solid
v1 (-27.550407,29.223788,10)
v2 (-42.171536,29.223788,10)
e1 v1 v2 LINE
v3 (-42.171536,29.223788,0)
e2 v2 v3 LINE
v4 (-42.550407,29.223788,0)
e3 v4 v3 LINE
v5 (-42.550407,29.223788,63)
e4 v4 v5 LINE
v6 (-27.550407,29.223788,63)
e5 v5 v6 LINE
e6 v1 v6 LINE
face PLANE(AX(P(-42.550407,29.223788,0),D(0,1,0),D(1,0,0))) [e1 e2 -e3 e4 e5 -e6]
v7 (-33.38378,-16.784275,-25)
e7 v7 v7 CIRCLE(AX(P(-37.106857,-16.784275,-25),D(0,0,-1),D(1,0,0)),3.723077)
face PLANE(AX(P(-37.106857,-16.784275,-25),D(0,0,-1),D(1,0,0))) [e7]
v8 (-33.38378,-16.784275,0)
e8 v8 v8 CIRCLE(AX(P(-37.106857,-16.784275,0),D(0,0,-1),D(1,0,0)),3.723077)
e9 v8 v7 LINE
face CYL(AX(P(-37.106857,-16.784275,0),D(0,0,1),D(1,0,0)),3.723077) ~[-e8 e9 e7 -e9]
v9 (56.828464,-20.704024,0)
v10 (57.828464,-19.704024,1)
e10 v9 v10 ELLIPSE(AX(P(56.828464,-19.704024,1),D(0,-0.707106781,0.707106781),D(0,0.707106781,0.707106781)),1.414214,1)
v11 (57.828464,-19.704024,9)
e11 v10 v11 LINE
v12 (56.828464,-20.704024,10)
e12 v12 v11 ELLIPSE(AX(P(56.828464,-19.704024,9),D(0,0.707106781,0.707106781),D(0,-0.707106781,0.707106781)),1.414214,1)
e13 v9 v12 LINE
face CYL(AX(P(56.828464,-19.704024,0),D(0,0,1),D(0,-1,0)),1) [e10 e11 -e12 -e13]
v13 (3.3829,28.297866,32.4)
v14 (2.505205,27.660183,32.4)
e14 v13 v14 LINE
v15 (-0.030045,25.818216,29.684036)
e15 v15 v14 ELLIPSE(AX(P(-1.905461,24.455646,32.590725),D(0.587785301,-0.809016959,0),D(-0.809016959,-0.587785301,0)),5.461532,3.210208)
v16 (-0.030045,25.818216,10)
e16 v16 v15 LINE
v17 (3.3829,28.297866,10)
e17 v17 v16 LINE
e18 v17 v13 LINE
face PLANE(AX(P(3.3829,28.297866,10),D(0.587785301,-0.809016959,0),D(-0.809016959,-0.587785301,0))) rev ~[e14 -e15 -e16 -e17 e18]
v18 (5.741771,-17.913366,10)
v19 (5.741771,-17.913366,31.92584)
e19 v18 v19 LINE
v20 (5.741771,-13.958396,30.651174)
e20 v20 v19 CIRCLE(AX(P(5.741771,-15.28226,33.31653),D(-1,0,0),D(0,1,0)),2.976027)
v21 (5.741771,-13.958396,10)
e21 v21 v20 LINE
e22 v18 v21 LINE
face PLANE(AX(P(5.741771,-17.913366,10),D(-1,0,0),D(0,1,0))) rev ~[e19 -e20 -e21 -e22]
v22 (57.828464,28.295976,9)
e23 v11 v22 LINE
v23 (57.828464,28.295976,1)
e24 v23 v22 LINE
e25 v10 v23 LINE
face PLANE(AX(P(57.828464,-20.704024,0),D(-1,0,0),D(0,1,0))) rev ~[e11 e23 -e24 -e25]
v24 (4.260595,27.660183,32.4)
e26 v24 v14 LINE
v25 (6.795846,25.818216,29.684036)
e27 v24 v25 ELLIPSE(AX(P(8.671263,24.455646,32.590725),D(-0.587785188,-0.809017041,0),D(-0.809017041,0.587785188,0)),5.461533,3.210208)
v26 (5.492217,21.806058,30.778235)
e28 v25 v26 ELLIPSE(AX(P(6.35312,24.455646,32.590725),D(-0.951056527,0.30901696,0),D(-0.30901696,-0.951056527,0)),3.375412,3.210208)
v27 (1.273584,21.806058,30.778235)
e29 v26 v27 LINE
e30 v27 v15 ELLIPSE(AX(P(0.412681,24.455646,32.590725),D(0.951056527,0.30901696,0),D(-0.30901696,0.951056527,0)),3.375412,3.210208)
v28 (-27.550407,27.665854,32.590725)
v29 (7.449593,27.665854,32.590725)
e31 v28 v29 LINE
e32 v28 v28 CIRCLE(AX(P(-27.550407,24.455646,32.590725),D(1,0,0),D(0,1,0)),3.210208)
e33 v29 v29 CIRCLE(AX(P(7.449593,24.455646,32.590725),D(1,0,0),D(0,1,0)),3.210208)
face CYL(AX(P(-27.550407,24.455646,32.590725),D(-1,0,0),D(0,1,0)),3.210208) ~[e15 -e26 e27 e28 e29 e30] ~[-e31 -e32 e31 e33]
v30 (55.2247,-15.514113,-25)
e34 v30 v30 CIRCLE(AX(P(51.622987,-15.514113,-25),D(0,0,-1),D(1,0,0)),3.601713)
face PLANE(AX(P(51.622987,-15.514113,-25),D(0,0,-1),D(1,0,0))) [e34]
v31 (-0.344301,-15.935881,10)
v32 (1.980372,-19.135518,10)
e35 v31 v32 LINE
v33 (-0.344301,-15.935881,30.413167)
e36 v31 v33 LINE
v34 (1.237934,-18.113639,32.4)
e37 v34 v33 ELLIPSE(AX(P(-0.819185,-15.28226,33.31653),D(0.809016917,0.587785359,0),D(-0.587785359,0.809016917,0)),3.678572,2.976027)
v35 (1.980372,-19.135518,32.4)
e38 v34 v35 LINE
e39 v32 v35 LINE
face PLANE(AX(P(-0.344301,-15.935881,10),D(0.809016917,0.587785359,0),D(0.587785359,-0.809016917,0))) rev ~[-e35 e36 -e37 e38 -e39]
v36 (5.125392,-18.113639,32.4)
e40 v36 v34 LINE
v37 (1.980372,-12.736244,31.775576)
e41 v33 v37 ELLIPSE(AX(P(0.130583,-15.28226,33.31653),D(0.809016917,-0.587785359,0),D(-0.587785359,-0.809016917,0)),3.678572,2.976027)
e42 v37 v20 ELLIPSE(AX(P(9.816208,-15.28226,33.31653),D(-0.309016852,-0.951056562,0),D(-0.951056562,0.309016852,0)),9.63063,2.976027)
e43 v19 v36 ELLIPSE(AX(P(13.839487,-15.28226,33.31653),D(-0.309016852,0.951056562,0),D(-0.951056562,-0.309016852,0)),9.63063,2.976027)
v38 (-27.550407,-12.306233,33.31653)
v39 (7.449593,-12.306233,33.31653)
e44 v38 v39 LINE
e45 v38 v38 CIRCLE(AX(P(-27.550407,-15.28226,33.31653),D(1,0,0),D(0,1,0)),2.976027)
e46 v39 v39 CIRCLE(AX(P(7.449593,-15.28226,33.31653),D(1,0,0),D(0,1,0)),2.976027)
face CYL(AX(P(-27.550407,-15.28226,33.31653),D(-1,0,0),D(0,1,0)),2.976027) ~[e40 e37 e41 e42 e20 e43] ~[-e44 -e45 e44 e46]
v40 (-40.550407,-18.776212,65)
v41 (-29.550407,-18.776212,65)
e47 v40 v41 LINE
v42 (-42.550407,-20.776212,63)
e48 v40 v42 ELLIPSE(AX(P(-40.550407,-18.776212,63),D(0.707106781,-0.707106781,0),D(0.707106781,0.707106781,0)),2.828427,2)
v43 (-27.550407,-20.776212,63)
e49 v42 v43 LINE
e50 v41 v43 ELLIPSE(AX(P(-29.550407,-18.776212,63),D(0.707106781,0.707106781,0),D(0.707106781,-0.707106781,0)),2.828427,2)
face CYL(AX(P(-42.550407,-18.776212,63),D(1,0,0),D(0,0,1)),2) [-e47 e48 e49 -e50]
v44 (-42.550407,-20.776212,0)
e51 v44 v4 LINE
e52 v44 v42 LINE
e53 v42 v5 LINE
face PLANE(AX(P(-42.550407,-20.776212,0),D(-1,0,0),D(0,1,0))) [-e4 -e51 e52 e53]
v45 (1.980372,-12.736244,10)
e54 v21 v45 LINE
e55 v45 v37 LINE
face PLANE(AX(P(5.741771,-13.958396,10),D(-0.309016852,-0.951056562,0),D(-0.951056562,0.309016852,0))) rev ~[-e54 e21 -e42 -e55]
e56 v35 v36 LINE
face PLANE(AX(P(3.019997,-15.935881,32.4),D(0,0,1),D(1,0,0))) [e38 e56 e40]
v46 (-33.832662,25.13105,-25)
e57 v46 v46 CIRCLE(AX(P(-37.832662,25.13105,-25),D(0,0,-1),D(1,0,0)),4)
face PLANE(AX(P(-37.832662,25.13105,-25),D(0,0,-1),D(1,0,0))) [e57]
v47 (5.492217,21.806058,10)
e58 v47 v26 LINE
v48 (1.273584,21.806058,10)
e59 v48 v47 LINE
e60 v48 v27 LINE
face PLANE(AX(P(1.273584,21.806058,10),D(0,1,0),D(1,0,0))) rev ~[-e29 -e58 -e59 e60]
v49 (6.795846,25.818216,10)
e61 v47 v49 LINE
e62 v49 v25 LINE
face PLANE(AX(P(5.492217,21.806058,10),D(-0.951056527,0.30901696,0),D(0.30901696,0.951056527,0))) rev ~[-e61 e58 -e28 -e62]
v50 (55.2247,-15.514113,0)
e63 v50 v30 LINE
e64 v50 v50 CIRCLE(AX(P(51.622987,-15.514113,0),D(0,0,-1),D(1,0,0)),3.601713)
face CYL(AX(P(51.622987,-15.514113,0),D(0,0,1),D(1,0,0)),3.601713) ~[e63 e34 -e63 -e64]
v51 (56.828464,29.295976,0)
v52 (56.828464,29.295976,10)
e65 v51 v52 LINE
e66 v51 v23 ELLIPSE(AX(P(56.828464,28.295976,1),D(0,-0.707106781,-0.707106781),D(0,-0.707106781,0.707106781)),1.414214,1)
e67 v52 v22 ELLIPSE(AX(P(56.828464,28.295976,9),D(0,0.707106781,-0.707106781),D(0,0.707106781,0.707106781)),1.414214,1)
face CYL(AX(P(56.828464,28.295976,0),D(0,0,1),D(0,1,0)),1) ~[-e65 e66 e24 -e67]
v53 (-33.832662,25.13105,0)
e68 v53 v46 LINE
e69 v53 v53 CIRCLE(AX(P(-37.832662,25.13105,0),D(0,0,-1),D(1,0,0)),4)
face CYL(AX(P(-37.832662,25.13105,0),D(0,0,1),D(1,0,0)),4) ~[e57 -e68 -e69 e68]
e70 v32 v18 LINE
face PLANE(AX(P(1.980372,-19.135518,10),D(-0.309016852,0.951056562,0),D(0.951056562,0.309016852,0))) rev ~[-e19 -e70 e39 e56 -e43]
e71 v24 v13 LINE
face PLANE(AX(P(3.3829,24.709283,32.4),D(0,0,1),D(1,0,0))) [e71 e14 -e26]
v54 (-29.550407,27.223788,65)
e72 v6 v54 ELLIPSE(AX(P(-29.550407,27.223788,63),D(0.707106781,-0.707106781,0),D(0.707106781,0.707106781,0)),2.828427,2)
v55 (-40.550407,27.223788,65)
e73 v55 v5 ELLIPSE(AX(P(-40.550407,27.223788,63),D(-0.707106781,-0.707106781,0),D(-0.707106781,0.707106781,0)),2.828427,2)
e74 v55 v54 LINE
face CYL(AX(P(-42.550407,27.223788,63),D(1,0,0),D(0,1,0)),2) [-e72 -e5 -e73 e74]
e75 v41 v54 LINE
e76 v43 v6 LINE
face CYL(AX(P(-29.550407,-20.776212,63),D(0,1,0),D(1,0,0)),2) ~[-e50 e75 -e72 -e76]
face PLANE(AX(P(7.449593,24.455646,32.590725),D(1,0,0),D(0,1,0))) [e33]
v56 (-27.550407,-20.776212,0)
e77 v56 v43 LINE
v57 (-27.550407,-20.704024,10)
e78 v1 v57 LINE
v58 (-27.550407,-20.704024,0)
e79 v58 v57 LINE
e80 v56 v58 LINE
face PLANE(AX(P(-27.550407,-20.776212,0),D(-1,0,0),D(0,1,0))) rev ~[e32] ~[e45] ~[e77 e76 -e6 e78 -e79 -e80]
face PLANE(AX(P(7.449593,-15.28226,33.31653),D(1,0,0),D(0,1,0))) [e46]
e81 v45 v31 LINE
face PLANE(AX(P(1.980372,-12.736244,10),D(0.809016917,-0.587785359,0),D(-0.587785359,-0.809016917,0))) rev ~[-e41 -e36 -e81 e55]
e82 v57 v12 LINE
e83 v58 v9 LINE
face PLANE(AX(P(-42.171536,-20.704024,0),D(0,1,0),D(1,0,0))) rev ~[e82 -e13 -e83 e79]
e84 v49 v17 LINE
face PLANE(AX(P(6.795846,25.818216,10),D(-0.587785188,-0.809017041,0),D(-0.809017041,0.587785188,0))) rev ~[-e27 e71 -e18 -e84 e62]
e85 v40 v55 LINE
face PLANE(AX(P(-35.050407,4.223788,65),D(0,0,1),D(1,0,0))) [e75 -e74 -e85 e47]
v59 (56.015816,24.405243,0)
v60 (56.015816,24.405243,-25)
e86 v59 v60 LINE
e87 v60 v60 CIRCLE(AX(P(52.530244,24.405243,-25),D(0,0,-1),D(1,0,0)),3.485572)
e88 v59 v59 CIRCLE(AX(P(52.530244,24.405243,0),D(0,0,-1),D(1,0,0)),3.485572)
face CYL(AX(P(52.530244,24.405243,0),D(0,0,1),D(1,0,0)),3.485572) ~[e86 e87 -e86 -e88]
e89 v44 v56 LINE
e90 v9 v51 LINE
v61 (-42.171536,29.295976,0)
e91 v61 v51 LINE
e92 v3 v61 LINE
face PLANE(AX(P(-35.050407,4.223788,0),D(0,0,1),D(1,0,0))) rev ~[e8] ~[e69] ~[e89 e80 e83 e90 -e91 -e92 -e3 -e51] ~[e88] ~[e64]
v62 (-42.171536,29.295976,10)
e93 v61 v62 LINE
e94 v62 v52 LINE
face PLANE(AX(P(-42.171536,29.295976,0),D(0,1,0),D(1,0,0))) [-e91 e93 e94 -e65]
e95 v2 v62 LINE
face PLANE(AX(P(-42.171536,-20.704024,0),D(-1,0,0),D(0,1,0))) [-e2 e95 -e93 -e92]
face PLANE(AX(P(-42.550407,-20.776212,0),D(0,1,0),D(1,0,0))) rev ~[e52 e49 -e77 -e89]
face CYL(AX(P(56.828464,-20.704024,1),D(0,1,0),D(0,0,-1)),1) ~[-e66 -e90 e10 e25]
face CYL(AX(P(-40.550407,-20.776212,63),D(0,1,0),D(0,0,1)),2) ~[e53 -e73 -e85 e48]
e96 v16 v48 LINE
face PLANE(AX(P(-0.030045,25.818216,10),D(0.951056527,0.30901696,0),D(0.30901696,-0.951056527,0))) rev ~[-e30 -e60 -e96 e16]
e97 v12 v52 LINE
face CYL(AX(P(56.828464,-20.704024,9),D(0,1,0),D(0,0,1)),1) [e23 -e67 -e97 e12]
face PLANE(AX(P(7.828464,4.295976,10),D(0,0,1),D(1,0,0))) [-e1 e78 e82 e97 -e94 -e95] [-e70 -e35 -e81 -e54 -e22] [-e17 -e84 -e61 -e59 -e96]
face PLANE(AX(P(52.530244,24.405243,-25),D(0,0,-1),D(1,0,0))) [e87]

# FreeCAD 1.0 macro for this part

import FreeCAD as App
import Part
import Sketcher
from FreeCAD import Vector
Q = App.Units.Quantity


def edges_at(feature, points):
    """Names of the edges that pass closest to the given points."""
    edges = feature.Shape.Edges
    near = lambda p: min(range(len(edges)), key=lambda i: edges[i].distToShape(Part.Vertex(*p))[0])
    return sorted({f"Edge{near(p) + 1}" for p in points})

doc = App.newDocument("Part")
body = doc.addObject("PartDesign::Body", "Body")

sketch1 = doc.addObject("Sketcher::SketchObject", "Sketch")
body.addObject(sketch1)
sketch1.AttachmentSupport = (doc.XY_Plane, [""])
sketch1.MapMode = "FlatFace"
sketch1.addGeometry(Part.LineSegment(Vector(-42, 29, 0), Vector(-42, -21, 0)), False)
sketch1.addGeometry(Part.LineSegment(Vector(-42, -21, 0), Vector(58, -21, 0)), False)
sketch1.addGeometry(Part.LineSegment(Vector(58, -21, 0), Vector(58, 29, 0)), False)
sketch1.addGeometry(Part.LineSegment(Vector(58, 29, 0), Vector(-42, 29, 0)), False)
sketch1.addConstraint(Sketcher.Constraint("Coincident", 0, 2, 1, 1))
sketch1.addConstraint(Sketcher.Constraint("Coincident", 1, 2, 2, 1))
sketch1.addConstraint(Sketcher.Constraint("Coincident", 2, 2, 3, 1))
sketch1.addConstraint(Sketcher.Constraint("Coincident", 3, 2, 0, 1))
sketch1.addConstraint(Sketcher.Constraint("Vertical", 0))
sketch1.addConstraint(Sketcher.Constraint("Horizontal", 1))
sketch1.addConstraint(Sketcher.Constraint("Vertical", 2))
sketch1.addConstraint(Sketcher.Constraint("Horizontal", 3))
sketch1.addConstraint(Sketcher.Constraint("DistanceX", 1, 1, 1, 2, 100.0))
sketch1.addConstraint(Sketcher.Constraint("DistanceY", 0, 2, 0, 1, 50.0))
sketch1.addConstraint(Sketcher.Constraint("DistanceX", 0, 2, -1, 1, 42.171536))
sketch1.addConstraint(Sketcher.Constraint("DistanceY", 0, 2, -1, 1, 20.704024))
pad1 = doc.addObject("PartDesign::Pad", "Pad")
body.addObject(pad1)
pad1.Profile = sketch1
pad1.Length = 10

sketch2 = doc.addObject("Sketcher::SketchObject", "Sketch001")
body.addObject(sketch2)
sketch2.AttachmentSupport = (doc.XY_Plane, [""])
sketch2.MapMode = "FlatFace"
sketch2.addGeometry(Part.Circle(Vector(51.6, -15.5, 0), Vector(0, 0, 1), 3.6), False)
sketch2.addGeometry(Part.Circle(Vector(52.5, 24.4, 0), Vector(0, 0, 1), 3.5), False)
sketch2.addGeometry(Part.Circle(Vector(-37.1, -16.8, 0), Vector(0, 0, 1), 3.7), False)
sketch2.addGeometry(Part.Circle(Vector(-37.8, 25.1, 0), Vector(0, 0, 1), 4), False)
sketch2.addConstraint(Sketcher.Constraint("Diameter", 3, 8.0))
sketch2.addConstraint(Sketcher.Constraint("Diameter", 0, 7.203426))
sketch2.addConstraint(Sketcher.Constraint("Diameter", 1, 6.971144))
sketch2.addConstraint(Sketcher.Constraint("Diameter", 2, 7.446154))
sketch2.addConstraint(Sketcher.Constraint("DistanceX", 2, 3, 1, 3, 89.637101))
sketch2.addConstraint(Sketcher.Constraint("DistanceY", -1, 1, 3, 3, 25.13105))
sketch2.addConstraint(Sketcher.Constraint("DistanceX", 3, 3, 0, 3, 89.455649))
sketch2.addConstraint(Sketcher.Constraint("DistanceX", -1, 1, 0, 3, 51.622987))
sketch2.addConstraint(Sketcher.Constraint("DistanceY", 0, 3, -1, 1, 15.514113))
sketch2.addConstraint(Sketcher.Constraint("DistanceX", -1, 1, 1, 3, 52.530244))
sketch2.addConstraint(Sketcher.Constraint("DistanceY", -1, 1, 1, 3, 24.405243))
sketch2.addConstraint(Sketcher.Constraint("DistanceY", 2, 3, -1, 1, 16.784275))
pad2 = doc.addObject("PartDesign::Pad", "Pad001")
body.addObject(pad2)
pad2.Profile = sketch2
pad2.Length = 25
pad2.Reversed = True

sketch3 = doc.addObject("Sketcher::SketchObject", "Sketch002")
body.addObject(sketch3)
sketch3.AttachmentSupport = (doc.XY_Plane, [""])
sketch3.MapMode = "FlatFace"
sketch3.addGeometry(Part.LineSegment(Vector(-43, 29, 0), Vector(-43, -21, 0)), False)
sketch3.addGeometry(Part.LineSegment(Vector(-43, -21, 0), Vector(-28, -21, 0)), False)
sketch3.addGeometry(Part.LineSegment(Vector(-28, -21, 0), Vector(-28, 29, 0)), False)
sketch3.addGeometry(Part.LineSegment(Vector(-28, 29, 0), Vector(-43, 29, 0)), False)
sketch3.addConstraint(Sketcher.Constraint("Coincident", 0, 2, 1, 1))
sketch3.addConstraint(Sketcher.Constraint("Coincident", 1, 2, 2, 1))
sketch3.addConstraint(Sketcher.Constraint("Coincident", 2, 2, 3, 1))
sketch3.addConstraint(Sketcher.Constraint("Coincident", 3, 2, 0, 1))
sketch3.addConstraint(Sketcher.Constraint("Vertical", 0))
sketch3.addConstraint(Sketcher.Constraint("Horizontal", 1))
sketch3.addConstraint(Sketcher.Constraint("Vertical", 2))
sketch3.addConstraint(Sketcher.Constraint("Horizontal", 3))
sketch3.addConstraint(Sketcher.Constraint("DistanceX", 1, 1, 1, 2, 15.0))
sketch3.addConstraint(Sketcher.Constraint("DistanceY", 0, 2, 0, 1, 50.0))
sketch3.addConstraint(Sketcher.Constraint("DistanceX", 0, 2, -1, 1, 42.550407))
sketch3.addConstraint(Sketcher.Constraint("DistanceY", 0, 2, -1, 1, 20.776212))
pad3 = doc.addObject("PartDesign::Pad", "Pad002")
body.addObject(pad3)
pad3.Profile = sketch3
pad3.Length = 65

sketch4 = doc.addObject("Sketcher::SketchObject", "Sketch003")
body.addObject(sketch4)
sketch4.AttachmentSupport = (doc.YZ_Plane, [""])
sketch4.MapMode = "FlatFace"
sketch4.AttachmentOffset = App.Placement(Vector(0, 0, -27.550407), App.Rotation())
sketch4.addGeometry(Part.Circle(Vector(-15.3, 33.3, 0), Vector(0, 0, 1), 3), False)
sketch4.addGeometry(Part.Circle(Vector(24.5, 32.6, 0), Vector(0, 0, 1), 3.2), False)
sketch4.addConstraint(Sketcher.Constraint("Diameter", 0, 5.952054))
sketch4.addConstraint(Sketcher.Constraint("Diameter", 1, 6.420416))
sketch4.addConstraint(Sketcher.Constraint("DistanceX", 0, 3, -1, 1, 15.28226))
sketch4.addConstraint(Sketcher.Constraint("DistanceY", -1, 1, 0, 3, 33.31653))
sketch4.addConstraint(Sketcher.Constraint("DistanceX", -1, 1, 1, 3, 24.455646))
sketch4.addConstraint(Sketcher.Constraint("DistanceY", -1, 1, 1, 3, 32.590725))
pad4 = doc.addObject("PartDesign::Pad", "Pad003")
body.addObject(pad4)
pad4.Profile = sketch4
pad4.Length = 35

sketch5 = doc.addObject("Sketcher::SketchObject", "Sketch004")
body.addObject(sketch5)
sketch5.AttachmentSupport = (doc.XY_Plane, [""])
sketch5.MapMode = "FlatFace"
sketch5.AttachmentOffset = App.Placement(Vector(0, 0, 10), App.Rotation())
sketch5.addGeometry(Part.LineSegment(Vector(5.7, -17.9, 0), Vector(5.7, -14, 0)), False)
sketch5.addGeometry(Part.LineSegment(Vector(5.7, -14, 0), Vector(2, -12.7, 0)), False)
sketch5.addGeometry(Part.LineSegment(Vector(2, -12.7, 0), Vector(-0.3, -15.9, 0)), False)
sketch5.addGeometry(Part.LineSegment(Vector(-0.3, -15.9, 0), Vector(2, -19.1, 0)), False)
sketch5.addGeometry(Part.LineSegment(Vector(2, -19.1, 0), Vector(5.7, -17.9, 0)), False)
sketch5.addGeometry(Part.LineSegment(Vector(1.3, 21.8, 0), Vector(5.5, 21.8, 0)), False)
sketch5.addGeometry(Part.LineSegment(Vector(5.5, 21.8, 0), Vector(6.8, 25.8, 0)), False)
sketch5.addGeometry(Part.LineSegment(Vector(6.8, 25.8, 0), Vector(3.4, 28.3, 0)), False)
sketch5.addGeometry(Part.LineSegment(Vector(3.4, 28.3, 0), Vector(0, 25.8, 0)), False)
sketch5.addGeometry(Part.LineSegment(Vector(0, 25.8, 0), Vector(1.3, 21.8, 0)), False)
sketch5.addConstraint(Sketcher.Constraint("Coincident", 0, 2, 1, 1))
sketch5.addConstraint(Sketcher.Constraint("Coincident", 1, 2, 2, 1))
sketch5.addConstraint(Sketcher.Constraint("Coincident", 2, 2, 3, 1))
sketch5.addConstraint(Sketcher.Constraint("Coincident", 3, 2, 4, 1))
sketch5.addConstraint(Sketcher.Constraint("Coincident", 4, 2, 0, 1))
sketch5.addConstraint(Sketcher.Constraint("Coincident", 5, 2, 6, 1))
sketch5.addConstraint(Sketcher.Constraint("Coincident", 6, 2, 7, 1))
sketch5.addConstraint(Sketcher.Constraint("Coincident", 7, 2, 8, 1))
sketch5.addConstraint(Sketcher.Constraint("Coincident", 8, 2, 9, 1))
sketch5.addConstraint(Sketcher.Constraint("Coincident", 9, 2, 5, 1))
sketch5.addConstraint(Sketcher.Constraint("Vertical", 0))
sketch5.addConstraint(Sketcher.Constraint("Horizontal", 5))
sketch5.addConstraint(Sketcher.Constraint("Perpendicular", 1, 6))
sketch5.addConstraint(Sketcher.Constraint("Perpendicular", 2, 7))
sketch5.addConstraint(Sketcher.Constraint("Perpendicular", 3, 8))
sketch5.addConstraint(Sketcher.Constraint("Perpendicular", 4, 9))
sketch5.addConstraint(Sketcher.Constraint("Horizontal", 6, 2, 8, 2))
sketch5.addConstraint(Sketcher.Constraint("Vertical", 1, 2, 3, 2))
sketch5.addConstraint(Sketcher.Constraint("Equal", 1, 2))
sketch5.addConstraint(Sketcher.Constraint("Equal", 2, 3))
sketch5.addConstraint(Sketcher.Constraint("Equal", 3, 4))
sketch5.addConstraint(Sketcher.Constraint("Equal", 6, 7))
sketch5.addConstraint(Sketcher.Constraint("Angle", 1, Q("162.000009 deg")))
sketch5.addConstraint(Sketcher.Constraint("Angle", 2, Q("-126.000008 deg")))
sketch5.addConstraint(Sketcher.Constraint("DistanceY", 0, 1, 0, 2, 3.95497))
sketch5.addConstraint(Sketcher.Constraint("DistanceX", 2, 2, -1, 1, 0.344301))
sketch5.addConstraint(Sketcher.Constraint("DistanceX", -1, 1, 7, 2, 3.3829))
sketch5.addConstraint(Sketcher.Constraint("DistanceX", 5, 1, 5, 2, 4.218633))
sketch5.addConstraint(Sketcher.Constraint("DistanceY", 2, 2, -1, 1, 15.935881))
sketch5.addConstraint(Sketcher.Constraint("DistanceY", -1, 1, 5, 2, 21.806058))
pad5 = doc.addObject("PartDesign::Pad", "Pad004")
body.addObject(pad5)
pad5.Profile = sketch5
pad5.Length = 22.4
doc.recompute()

fillet = doc.addObject("PartDesign::Fillet", "Fillet")
body.addObject(fillet)
fillet.Base = (pad5, edges_at(pad5, [
    (-42.55, 4.224, 65),
    (-35.05, -20.776, 65),
    (-27.55, 4.224, 65),
    (-35.05, 29.224, 65),
]))
fillet.Radius = 2
doc.recompute()

fillet2 = doc.addObject("PartDesign::Fillet", "Fillet001")
body.addObject(fillet2)
fillet2.Base = (fillet, edges_at(fillet, [
    (57.828, -20.704, 5),
    (57.828, 29.296, 5),
    (57.828, 4.296, 0),
    (57.828, 4.296, 10),
]))
fillet2.Radius = 1

doc.recompute()
